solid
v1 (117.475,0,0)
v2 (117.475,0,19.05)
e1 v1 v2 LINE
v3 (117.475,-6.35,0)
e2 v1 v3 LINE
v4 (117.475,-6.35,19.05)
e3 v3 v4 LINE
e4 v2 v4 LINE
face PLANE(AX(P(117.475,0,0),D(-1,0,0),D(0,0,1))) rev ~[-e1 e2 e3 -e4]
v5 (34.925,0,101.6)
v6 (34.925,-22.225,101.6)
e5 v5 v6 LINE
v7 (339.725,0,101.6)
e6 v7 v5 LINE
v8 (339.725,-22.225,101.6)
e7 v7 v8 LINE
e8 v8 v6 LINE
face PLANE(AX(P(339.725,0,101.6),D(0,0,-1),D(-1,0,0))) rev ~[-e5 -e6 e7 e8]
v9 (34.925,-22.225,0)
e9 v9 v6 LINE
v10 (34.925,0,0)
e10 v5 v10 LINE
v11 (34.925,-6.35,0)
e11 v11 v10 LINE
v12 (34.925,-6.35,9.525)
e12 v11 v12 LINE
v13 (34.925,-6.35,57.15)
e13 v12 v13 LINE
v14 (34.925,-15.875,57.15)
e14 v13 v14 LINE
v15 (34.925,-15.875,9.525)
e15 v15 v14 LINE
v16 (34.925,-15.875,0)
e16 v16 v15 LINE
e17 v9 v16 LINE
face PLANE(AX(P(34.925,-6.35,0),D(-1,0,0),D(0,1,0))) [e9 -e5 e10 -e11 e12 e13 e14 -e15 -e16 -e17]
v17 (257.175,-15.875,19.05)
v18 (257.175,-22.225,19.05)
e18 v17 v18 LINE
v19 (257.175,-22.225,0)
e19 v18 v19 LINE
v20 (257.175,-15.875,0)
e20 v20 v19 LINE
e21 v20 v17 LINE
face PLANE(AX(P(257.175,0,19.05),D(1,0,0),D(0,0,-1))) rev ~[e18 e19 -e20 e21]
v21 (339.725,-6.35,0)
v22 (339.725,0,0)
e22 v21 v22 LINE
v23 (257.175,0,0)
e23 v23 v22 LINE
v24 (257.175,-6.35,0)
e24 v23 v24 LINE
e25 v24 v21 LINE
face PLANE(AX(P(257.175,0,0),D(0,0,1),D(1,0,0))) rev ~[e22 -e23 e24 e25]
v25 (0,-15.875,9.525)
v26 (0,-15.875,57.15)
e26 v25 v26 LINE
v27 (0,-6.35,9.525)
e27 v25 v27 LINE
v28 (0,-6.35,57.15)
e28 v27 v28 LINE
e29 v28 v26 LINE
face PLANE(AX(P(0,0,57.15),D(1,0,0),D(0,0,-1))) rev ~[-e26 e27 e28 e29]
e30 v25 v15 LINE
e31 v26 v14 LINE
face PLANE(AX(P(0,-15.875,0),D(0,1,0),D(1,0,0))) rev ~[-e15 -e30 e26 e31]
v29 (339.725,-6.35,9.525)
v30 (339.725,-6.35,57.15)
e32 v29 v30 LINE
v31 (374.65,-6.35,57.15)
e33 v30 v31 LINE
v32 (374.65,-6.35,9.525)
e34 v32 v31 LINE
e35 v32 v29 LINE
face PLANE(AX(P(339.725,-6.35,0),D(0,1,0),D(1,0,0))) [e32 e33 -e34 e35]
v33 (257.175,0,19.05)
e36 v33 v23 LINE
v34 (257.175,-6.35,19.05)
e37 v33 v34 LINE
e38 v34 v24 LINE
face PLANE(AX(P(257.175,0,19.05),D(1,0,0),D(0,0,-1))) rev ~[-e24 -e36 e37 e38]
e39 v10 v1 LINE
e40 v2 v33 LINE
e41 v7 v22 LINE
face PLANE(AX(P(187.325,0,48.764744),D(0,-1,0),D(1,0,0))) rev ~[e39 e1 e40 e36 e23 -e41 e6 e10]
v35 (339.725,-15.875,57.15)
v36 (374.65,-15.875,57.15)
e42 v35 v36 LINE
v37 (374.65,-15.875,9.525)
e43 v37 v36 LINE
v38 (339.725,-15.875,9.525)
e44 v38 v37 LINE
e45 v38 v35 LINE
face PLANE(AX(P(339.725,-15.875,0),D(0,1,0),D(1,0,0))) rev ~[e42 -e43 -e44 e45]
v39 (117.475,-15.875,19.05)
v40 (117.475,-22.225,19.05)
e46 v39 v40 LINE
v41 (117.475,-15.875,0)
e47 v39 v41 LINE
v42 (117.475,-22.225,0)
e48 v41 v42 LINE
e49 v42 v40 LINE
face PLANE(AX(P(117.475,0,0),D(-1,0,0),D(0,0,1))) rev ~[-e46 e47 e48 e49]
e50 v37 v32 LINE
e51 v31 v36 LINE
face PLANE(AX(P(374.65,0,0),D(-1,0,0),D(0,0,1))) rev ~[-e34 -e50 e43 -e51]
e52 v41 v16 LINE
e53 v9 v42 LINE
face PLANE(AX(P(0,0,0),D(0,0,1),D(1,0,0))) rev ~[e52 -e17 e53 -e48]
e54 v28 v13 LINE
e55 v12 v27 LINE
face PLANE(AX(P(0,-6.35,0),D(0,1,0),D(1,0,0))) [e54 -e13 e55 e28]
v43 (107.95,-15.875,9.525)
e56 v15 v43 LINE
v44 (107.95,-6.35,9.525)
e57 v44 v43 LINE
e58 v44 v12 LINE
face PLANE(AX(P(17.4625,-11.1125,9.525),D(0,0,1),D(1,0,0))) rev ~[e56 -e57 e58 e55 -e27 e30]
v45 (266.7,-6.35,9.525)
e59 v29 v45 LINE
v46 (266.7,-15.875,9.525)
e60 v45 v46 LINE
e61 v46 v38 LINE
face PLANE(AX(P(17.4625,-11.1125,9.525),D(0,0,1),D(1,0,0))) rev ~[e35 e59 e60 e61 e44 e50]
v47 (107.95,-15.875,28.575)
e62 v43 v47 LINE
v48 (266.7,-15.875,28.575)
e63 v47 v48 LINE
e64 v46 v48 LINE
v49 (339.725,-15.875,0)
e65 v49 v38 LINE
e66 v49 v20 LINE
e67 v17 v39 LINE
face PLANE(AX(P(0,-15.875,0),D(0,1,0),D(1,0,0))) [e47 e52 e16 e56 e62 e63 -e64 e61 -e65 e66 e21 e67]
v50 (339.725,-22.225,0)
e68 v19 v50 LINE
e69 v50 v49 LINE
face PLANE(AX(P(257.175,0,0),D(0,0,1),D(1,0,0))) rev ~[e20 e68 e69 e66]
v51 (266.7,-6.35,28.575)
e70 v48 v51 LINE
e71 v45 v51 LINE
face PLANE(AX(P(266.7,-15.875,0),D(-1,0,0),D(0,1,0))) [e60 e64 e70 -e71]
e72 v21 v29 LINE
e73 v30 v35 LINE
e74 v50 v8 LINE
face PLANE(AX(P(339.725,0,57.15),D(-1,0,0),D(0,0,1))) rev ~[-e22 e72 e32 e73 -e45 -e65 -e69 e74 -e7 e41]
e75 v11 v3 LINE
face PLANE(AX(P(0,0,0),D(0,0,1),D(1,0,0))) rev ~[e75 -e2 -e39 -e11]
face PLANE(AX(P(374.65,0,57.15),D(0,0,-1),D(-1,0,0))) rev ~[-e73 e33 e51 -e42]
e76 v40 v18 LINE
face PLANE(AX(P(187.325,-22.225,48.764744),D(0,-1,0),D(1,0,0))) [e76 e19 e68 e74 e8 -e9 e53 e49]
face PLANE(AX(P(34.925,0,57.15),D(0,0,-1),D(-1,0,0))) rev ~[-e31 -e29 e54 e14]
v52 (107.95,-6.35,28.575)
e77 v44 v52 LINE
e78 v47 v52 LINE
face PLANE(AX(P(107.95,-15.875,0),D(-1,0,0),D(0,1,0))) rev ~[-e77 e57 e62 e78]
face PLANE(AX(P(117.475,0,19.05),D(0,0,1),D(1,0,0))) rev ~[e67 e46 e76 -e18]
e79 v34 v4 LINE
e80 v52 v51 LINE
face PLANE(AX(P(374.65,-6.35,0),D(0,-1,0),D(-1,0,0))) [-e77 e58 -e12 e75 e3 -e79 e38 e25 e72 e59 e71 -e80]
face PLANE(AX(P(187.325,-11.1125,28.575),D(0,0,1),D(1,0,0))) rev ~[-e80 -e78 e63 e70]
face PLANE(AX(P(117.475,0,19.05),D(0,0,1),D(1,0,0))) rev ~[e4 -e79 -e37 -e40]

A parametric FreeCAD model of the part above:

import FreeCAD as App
import Part
import Sketcher

V = App.Vector
Q = App.Units.Quantity

doc = App.newDocument("Part")
body = doc.addObject("PartDesign::Body", "Body")

# Sketch on XZ plane
sketch1 = doc.addObject("Sketcher::SketchObject", "Sketch")
body.addObject(sketch1)
sketch1.AttachmentSupport = (doc.XZ_Plane, [""])
sketch1.MapMode = "FlatFace"
sketch1.addGeometry(Part.LineSegment(V(0, 57, 0), V(0, 0, 0)), False)
sketch1.addGeometry(Part.LineSegment(V(0, 0, 0), V(117, 0, 0)), False)
sketch1.addGeometry(Part.LineSegment(V(117, 0, 0), V(117, 19, 0)), False)
sketch1.addGeometry(Part.LineSegment(V(117, 19, 0), V(257, 19, 0)), False)
sketch1.addGeometry(Part.LineSegment(V(257, 19, 0), V(257, 0, 0)), False)
sketch1.addGeometry(Part.LineSegment(V(257, 0, 0), V(375, 0, 0)), False)
sketch1.addGeometry(Part.LineSegment(V(375, 0, 0), V(375, 57, 0)), False)
sketch1.addGeometry(Part.LineSegment(V(375, 57, 0), V(340, 57, 0)), False)
sketch1.addGeometry(Part.LineSegment(V(340, 57, 0), V(340, 102, 0)), False)
sketch1.addGeometry(Part.LineSegment(V(340, 102, 0), V(35, 102, 0)), False)
sketch1.addGeometry(Part.LineSegment(V(35, 102, 0), V(35, 57, 0)), False)
sketch1.addGeometry(Part.LineSegment(V(35, 57, 0), V(0, 57, 0)), False)
sketch1.addConstraint(Sketcher.Constraint("Coincident", 0, 2, 1, 1))
sketch1.addConstraint(Sketcher.Constraint("Coincident", 1, 2, 2, 1))
sketch1.addConstraint(Sketcher.Constraint("Coincident", 2, 2, 3, 1))
sketch1.addConstraint(Sketcher.Constraint("Coincident", 3, 2, 4, 1))
sketch1.addConstraint(Sketcher.Constraint("Coincident", 4, 2, 5, 1))
sketch1.addConstraint(Sketcher.Constraint("Coincident", 5, 2, 6, 1))
sketch1.addConstraint(Sketcher.Constraint("Coincident", 6, 2, 7, 1))
sketch1.addConstraint(Sketcher.Constraint("Coincident", 7, 2, 8, 1))
sketch1.addConstraint(Sketcher.Constraint("Coincident", 8, 2, 9, 1))
sketch1.addConstraint(Sketcher.Constraint("Coincident", 9, 2, 10, 1))
sketch1.addConstraint(Sketcher.Constraint("Coincident", 10, 2, 11, 1))
sketch1.addConstraint(Sketcher.Constraint("Coincident", 11, 2, 0, 1))
sketch1.addConstraint(Sketcher.Constraint("Vertical", 0))
sketch1.addConstraint(Sketcher.Constraint("Horizontal", 1))
sketch1.addConstraint(Sketcher.Constraint("Vertical", 2))
sketch1.addConstraint(Sketcher.Constraint("Horizontal", 3))
sketch1.addConstraint(Sketcher.Constraint("Vertical", 4))
sketch1.addConstraint(Sketcher.Constraint("Horizontal", 5))
sketch1.addConstraint(Sketcher.Constraint("Vertical", 6))
sketch1.addConstraint(Sketcher.Constraint("Horizontal", 7))
sketch1.addConstraint(Sketcher.Constraint("Vertical", 8))
sketch1.addConstraint(Sketcher.Constraint("Horizontal", 9))
sketch1.addConstraint(Sketcher.Constraint("Vertical", 10))
sketch1.addConstraint(Sketcher.Constraint("Horizontal", 11))
sketch1.addConstraint(Sketcher.Constraint("Coincident", 0, 2, -1, 1))
sketch1.addConstraint(Sketcher.Constraint("PointOnObject", 4, 2, -1))
sketch1.addConstraint(Sketcher.Constraint("Horizontal", 7, 2, 10, 2))
sketch1.addConstraint(Sketcher.Constraint("Equal", 1, 5))
sketch1.addConstraint(Sketcher.Constraint("Equal", 7, 11))
sketch1.addConstraint(Sketcher.Constraint("DistanceX", 9, 2, 9, 1, Q("12 in")))
sketch1.addConstraint(Sketcher.Constraint("DistanceX", 3, 1, 3, 2, Q("5.5 in")))
sketch1.addConstraint(Sketcher.Constraint("DistanceY", -1, 1, 8, 2, Q("4 in")))
sketch1.addConstraint(Sketcher.Constraint("DistanceY", 0, 2, 0, 1, Q("2.25 in")))
sketch1.addConstraint(Sketcher.Constraint("DistanceY", 2, 1, 2, 2, Q("0.75 in")))
sketch1.addConstraint(Sketcher.Constraint("DistanceX", 1, 1, 1, 2, Q("4.625 in")))
pad1 = doc.addObject("PartDesign::Pad", "Pad")
body.addObject(pad1)
pad1.Profile = sketch1
pad1.Length = Q("0.875 in")

# Sketch on XY plane
sketch2 = doc.addObject("Sketcher::SketchObject", "Sketch001")
body.addObject(sketch2)
sketch2.AttachmentSupport = (doc.XY_Plane, [""])
sketch2.MapMode = "FlatFace"
sketch2.addGeometry(Part.LineSegment(V(340, -16, 0), V(340, -22, 0)), False)
sketch2.addGeometry(Part.LineSegment(V(340, -22, 0), V(375, -22, 0)), False)
sketch2.addGeometry(Part.LineSegment(V(375, -22, 0), V(375, -16, 0)), False)
sketch2.addGeometry(Part.LineSegment(V(375, -16, 0), V(340, -16, 0)), False)
sketch2.addGeometry(Part.LineSegment(V(340, 0, 0), V(340, -6, 0)), False)
sketch2.addGeometry(Part.LineSegment(V(340, -6, 0), V(375, -6, 0)), False)
sketch2.addGeometry(Part.LineSegment(V(375, -6, 0), V(375, 0, 0)), False)
sketch2.addGeometry(Part.LineSegment(V(375, 0, 0), V(340, 0, 0)), False)
sketch2.addGeometry(Part.LineSegment(V(0, -16, 0), V(0, -22, 0)), False)
sketch2.addGeometry(Part.LineSegment(V(0, -22, 0), V(35, -22, 0)), False)
sketch2.addGeometry(Part.LineSegment(V(35, -22, 0), V(35, -16, 0)), False)
sketch2.addGeometry(Part.LineSegment(V(35, -16, 0), V(0, -16, 0)), False)
sketch2.addGeometry(Part.LineSegment(V(0, 0, 0), V(0, -6, 0)), False)
sketch2.addGeometry(Part.LineSegment(V(0, -6, 0), V(35, -6, 0)), False)
sketch2.addGeometry(Part.LineSegment(V(35, -6, 0), V(35, 0, 0)), False)
sketch2.addGeometry(Part.LineSegment(V(35, 0, 0), V(0, 0, 0)), False)
sketch2.addConstraint(Sketcher.Constraint("Coincident", 0, 2, 1, 1))
sketch2.addConstraint(Sketcher.Constraint("Coincident", 1, 2, 2, 1))
sketch2.addConstraint(Sketcher.Constraint("Coincident", 2, 2, 3, 1))
sketch2.addConstraint(Sketcher.Constraint("Coincident", 3, 2, 0, 1))
sketch2.addConstraint(Sketcher.Constraint("Coincident", 4, 2, 5, 1))
sketch2.addConstraint(Sketcher.Constraint("Coincident", 5, 2, 6, 1))
sketch2.addConstraint(Sketcher.Constraint("Coincident", 6, 2, 7, 1))
sketch2.addConstraint(Sketcher.Constraint("Coincident", 7, 2, 4, 1))
sketch2.addConstraint(Sketcher.Constraint("Coincident", 8, 2, 9, 1))
sketch2.addConstraint(Sketcher.Constraint("Coincident", 9, 2, 10, 1))
sketch2.addConstraint(Sketcher.Constraint("Coincident", 10, 2, 11, 1))
sketch2.addConstraint(Sketcher.Constraint("Coincident", 11, 2, 8, 1))
sketch2.addConstraint(Sketcher.Constraint("Coincident", 12, 2, 13, 1))
sketch2.addConstraint(Sketcher.Constraint("Coincident", 13, 2, 14, 1))
sketch2.addConstraint(Sketcher.Constraint("Coincident", 14, 2, 15, 1))
sketch2.addConstraint(Sketcher.Constraint("Coincident", 15, 2, 12, 1))
sketch2.addConstraint(Sketcher.Constraint("Vertical", 0))
sketch2.addConstraint(Sketcher.Constraint("Horizontal", 1))
sketch2.addConstraint(Sketcher.Constraint("Vertical", 2))
sketch2.addConstraint(Sketcher.Constraint("Horizontal", 3))
sketch2.addConstraint(Sketcher.Constraint("Vertical", 4))
sketch2.addConstraint(Sketcher.Constraint("Horizontal", 5))
sketch2.addConstraint(Sketcher.Constraint("Vertical", 6))
sketch2.addConstraint(Sketcher.Constraint("Horizontal", 7))
sketch2.addConstraint(Sketcher.Constraint("Vertical", 8))
sketch2.addConstraint(Sketcher.Constraint("Horizontal", 9))
sketch2.addConstraint(Sketcher.Constraint("Vertical", 10))
sketch2.addConstraint(Sketcher.Constraint("Horizontal", 11))
sketch2.addConstraint(Sketcher.Constraint("Vertical", 12))
sketch2.addConstraint(Sketcher.Constraint("Horizontal", 13))
sketch2.addConstraint(Sketcher.Constraint("Vertical", 14))
sketch2.addConstraint(Sketcher.Constraint("Horizontal", 15))
sketch2.addConstraint(Sketcher.Constraint("Coincident", 15, 2, -1, 1))
sketch2.addConstraint(Sketcher.Constraint("PointOnObject", 6, 2, -1))
sketch2.addConstraint(Sketcher.Constraint("PointOnObject", 8, 2, -2))
sketch2.addConstraint(Sketcher.Constraint("Horizontal", 1, 2, 8, 2))
sketch2.addConstraint(Sketcher.Constraint("Horizontal", 3, 2, 10, 2))
sketch2.addConstraint(Sketcher.Constraint("Horizontal", 5, 2, 12, 2))
sketch2.addConstraint(Sketcher.Constraint("Vertical", 3, 2, 4, 2))
sketch2.addConstraint(Sketcher.Constraint("Vertical", 2, 2, 5, 2))
sketch2.addConstraint(Sketcher.Constraint("Vertical", 10, 2, 13, 2))
sketch2.addConstraint(Sketcher.Constraint("Equal", 7, 9))
sketch2.addConstraint(Sketcher.Constraint("Equal", 2, 4))
sketch2.addConstraint(Sketcher.Constraint("DistanceX", 9, 2, 0, 2, Q("12 in")))
sketch2.addConstraint(Sketcher.Constraint("DistanceY", 0, 2, 0, 1, Q("0.25 in")))
sketch2.addConstraint(Sketcher.Constraint("DistanceX", 1, 1, 1, 2, Q("1.375 in")))
sketch2.addConstraint(Sketcher.Constraint("DistanceY", 0, 2, -1, 1, Q("0.875 in")))
pocket1 = doc.addObject("PartDesign::Pocket", "Pocket")
body.addObject(pocket1)
pocket1.Profile = sketch2
pocket1.Type = "ThroughAll"
pocket1.Reversed = True

# Sketch on XY plane
sketch3 = doc.addObject("Sketcher::SketchObject", "Sketch002")
body.addObject(sketch3)
sketch3.AttachmentSupport = (doc.XY_Plane, [""])
sketch3.MapMode = "FlatFace"
sketch3.addGeometry(Part.LineSegment(V(0, -6, 0), V(0, -16, 0)), False)
sketch3.addGeometry(Part.LineSegment(V(0, -16, 0), V(375, -16, 0)), False)
sketch3.addGeometry(Part.LineSegment(V(375, -16, 0), V(375, -6, 0)), False)
sketch3.addGeometry(Part.LineSegment(V(375, -6, 0), V(0, -6, 0)), False)
sketch3.addConstraint(Sketcher.Constraint("Coincident", 0, 2, 1, 1))
sketch3.addConstraint(Sketcher.Constraint("Coincident", 1, 2, 2, 1))
sketch3.addConstraint(Sketcher.Constraint("Coincident", 2, 2, 3, 1))
sketch3.addConstraint(Sketcher.Constraint("Coincident", 3, 2, 0, 1))
sketch3.addConstraint(Sketcher.Constraint("Vertical", 0))
sketch3.addConstraint(Sketcher.Constraint("Horizontal", 1))
sketch3.addConstraint(Sketcher.Constraint("Vertical", 2))
sketch3.addConstraint(Sketcher.Constraint("Horizontal", 3))
sketch3.addConstraint(Sketcher.Constraint("PointOnObject", 0, 2, -2))
sketch3.addConstraint(Sketcher.Constraint("DistanceX", 1, 1, 1, 2, Q("14.75 in")))
sketch3.addConstraint(Sketcher.Constraint("DistanceY", 0, 2, 0, 1, Q("0.375 in")))
sketch3.addConstraint(Sketcher.Constraint("DistanceY", 2, 2, -1, 1, Q("0.25 in")))
pocket2 = doc.addObject("PartDesign::Pocket", "Pocket001")
body.addObject(pocket2)
pocket2.Profile = sketch3
pocket2.Length = Q("0.375 in")
pocket2.Reversed = True

# Sketch on XY plane
sketch4 = doc.addObject("Sketcher::SketchObject", "Sketch003")
body.addObject(sketch4)
sketch4.AttachmentSupport = (doc.XY_Plane, [""])
sketch4.MapMode = "FlatFace"
sketch4.addGeometry(Part.LineSegment(V(108, -6, 0), V(108, -16, 0)), False)
sketch4.addGeometry(Part.LineSegment(V(108, -16, 0), V(267, -16, 0)), False)
sketch4.addGeometry(Part.LineSegment(V(267, -16, 0), V(267, -6, 0)), False)
sketch4.addGeometry(Part.LineSegment(V(267, -6, 0), V(108, -6, 0)), False)
sketch4.addConstraint(Sketcher.Constraint("Coincident", 0, 2, 1, 1))
sketch4.addConstraint(Sketcher.Constraint("Coincident", 1, 2, 2, 1))
sketch4.addConstraint(Sketcher.Constraint("Coincident", 2, 2, 3, 1))
sketch4.addConstraint(Sketcher.Constraint("Coincident", 3, 2, 0, 1))
sketch4.addConstraint(Sketcher.Constraint("Vertical", 0))
sketch4.addConstraint(Sketcher.Constraint("Horizontal", 1))
sketch4.addConstraint(Sketcher.Constraint("Vertical", 2))
sketch4.addConstraint(Sketcher.Constraint("Horizontal", 3))
sketch4.addConstraint(Sketcher.Constraint("DistanceX", 1, 1, 1, 2, Q("6.25 in")))
sketch4.addConstraint(Sketcher.Constraint("DistanceX", -1, 1, 1, 2, Q("10.5 in")))
sketch4.addConstraint(Sketcher.Constraint("DistanceY", 0, 2, 0, 1, Q("0.375 in")))
sketch4.addConstraint(Sketcher.Constraint("DistanceY", 2, 2, -1, 1, Q("0.25 in")))
pocket3 = doc.addObject("PartDesign::Pocket", "Pocket002")
body.addObject(pocket3)
pocket3.Profile = sketch4
pocket3.Length = Q("1.125 in")
pocket3.Reversed = True

doc.recompute()
